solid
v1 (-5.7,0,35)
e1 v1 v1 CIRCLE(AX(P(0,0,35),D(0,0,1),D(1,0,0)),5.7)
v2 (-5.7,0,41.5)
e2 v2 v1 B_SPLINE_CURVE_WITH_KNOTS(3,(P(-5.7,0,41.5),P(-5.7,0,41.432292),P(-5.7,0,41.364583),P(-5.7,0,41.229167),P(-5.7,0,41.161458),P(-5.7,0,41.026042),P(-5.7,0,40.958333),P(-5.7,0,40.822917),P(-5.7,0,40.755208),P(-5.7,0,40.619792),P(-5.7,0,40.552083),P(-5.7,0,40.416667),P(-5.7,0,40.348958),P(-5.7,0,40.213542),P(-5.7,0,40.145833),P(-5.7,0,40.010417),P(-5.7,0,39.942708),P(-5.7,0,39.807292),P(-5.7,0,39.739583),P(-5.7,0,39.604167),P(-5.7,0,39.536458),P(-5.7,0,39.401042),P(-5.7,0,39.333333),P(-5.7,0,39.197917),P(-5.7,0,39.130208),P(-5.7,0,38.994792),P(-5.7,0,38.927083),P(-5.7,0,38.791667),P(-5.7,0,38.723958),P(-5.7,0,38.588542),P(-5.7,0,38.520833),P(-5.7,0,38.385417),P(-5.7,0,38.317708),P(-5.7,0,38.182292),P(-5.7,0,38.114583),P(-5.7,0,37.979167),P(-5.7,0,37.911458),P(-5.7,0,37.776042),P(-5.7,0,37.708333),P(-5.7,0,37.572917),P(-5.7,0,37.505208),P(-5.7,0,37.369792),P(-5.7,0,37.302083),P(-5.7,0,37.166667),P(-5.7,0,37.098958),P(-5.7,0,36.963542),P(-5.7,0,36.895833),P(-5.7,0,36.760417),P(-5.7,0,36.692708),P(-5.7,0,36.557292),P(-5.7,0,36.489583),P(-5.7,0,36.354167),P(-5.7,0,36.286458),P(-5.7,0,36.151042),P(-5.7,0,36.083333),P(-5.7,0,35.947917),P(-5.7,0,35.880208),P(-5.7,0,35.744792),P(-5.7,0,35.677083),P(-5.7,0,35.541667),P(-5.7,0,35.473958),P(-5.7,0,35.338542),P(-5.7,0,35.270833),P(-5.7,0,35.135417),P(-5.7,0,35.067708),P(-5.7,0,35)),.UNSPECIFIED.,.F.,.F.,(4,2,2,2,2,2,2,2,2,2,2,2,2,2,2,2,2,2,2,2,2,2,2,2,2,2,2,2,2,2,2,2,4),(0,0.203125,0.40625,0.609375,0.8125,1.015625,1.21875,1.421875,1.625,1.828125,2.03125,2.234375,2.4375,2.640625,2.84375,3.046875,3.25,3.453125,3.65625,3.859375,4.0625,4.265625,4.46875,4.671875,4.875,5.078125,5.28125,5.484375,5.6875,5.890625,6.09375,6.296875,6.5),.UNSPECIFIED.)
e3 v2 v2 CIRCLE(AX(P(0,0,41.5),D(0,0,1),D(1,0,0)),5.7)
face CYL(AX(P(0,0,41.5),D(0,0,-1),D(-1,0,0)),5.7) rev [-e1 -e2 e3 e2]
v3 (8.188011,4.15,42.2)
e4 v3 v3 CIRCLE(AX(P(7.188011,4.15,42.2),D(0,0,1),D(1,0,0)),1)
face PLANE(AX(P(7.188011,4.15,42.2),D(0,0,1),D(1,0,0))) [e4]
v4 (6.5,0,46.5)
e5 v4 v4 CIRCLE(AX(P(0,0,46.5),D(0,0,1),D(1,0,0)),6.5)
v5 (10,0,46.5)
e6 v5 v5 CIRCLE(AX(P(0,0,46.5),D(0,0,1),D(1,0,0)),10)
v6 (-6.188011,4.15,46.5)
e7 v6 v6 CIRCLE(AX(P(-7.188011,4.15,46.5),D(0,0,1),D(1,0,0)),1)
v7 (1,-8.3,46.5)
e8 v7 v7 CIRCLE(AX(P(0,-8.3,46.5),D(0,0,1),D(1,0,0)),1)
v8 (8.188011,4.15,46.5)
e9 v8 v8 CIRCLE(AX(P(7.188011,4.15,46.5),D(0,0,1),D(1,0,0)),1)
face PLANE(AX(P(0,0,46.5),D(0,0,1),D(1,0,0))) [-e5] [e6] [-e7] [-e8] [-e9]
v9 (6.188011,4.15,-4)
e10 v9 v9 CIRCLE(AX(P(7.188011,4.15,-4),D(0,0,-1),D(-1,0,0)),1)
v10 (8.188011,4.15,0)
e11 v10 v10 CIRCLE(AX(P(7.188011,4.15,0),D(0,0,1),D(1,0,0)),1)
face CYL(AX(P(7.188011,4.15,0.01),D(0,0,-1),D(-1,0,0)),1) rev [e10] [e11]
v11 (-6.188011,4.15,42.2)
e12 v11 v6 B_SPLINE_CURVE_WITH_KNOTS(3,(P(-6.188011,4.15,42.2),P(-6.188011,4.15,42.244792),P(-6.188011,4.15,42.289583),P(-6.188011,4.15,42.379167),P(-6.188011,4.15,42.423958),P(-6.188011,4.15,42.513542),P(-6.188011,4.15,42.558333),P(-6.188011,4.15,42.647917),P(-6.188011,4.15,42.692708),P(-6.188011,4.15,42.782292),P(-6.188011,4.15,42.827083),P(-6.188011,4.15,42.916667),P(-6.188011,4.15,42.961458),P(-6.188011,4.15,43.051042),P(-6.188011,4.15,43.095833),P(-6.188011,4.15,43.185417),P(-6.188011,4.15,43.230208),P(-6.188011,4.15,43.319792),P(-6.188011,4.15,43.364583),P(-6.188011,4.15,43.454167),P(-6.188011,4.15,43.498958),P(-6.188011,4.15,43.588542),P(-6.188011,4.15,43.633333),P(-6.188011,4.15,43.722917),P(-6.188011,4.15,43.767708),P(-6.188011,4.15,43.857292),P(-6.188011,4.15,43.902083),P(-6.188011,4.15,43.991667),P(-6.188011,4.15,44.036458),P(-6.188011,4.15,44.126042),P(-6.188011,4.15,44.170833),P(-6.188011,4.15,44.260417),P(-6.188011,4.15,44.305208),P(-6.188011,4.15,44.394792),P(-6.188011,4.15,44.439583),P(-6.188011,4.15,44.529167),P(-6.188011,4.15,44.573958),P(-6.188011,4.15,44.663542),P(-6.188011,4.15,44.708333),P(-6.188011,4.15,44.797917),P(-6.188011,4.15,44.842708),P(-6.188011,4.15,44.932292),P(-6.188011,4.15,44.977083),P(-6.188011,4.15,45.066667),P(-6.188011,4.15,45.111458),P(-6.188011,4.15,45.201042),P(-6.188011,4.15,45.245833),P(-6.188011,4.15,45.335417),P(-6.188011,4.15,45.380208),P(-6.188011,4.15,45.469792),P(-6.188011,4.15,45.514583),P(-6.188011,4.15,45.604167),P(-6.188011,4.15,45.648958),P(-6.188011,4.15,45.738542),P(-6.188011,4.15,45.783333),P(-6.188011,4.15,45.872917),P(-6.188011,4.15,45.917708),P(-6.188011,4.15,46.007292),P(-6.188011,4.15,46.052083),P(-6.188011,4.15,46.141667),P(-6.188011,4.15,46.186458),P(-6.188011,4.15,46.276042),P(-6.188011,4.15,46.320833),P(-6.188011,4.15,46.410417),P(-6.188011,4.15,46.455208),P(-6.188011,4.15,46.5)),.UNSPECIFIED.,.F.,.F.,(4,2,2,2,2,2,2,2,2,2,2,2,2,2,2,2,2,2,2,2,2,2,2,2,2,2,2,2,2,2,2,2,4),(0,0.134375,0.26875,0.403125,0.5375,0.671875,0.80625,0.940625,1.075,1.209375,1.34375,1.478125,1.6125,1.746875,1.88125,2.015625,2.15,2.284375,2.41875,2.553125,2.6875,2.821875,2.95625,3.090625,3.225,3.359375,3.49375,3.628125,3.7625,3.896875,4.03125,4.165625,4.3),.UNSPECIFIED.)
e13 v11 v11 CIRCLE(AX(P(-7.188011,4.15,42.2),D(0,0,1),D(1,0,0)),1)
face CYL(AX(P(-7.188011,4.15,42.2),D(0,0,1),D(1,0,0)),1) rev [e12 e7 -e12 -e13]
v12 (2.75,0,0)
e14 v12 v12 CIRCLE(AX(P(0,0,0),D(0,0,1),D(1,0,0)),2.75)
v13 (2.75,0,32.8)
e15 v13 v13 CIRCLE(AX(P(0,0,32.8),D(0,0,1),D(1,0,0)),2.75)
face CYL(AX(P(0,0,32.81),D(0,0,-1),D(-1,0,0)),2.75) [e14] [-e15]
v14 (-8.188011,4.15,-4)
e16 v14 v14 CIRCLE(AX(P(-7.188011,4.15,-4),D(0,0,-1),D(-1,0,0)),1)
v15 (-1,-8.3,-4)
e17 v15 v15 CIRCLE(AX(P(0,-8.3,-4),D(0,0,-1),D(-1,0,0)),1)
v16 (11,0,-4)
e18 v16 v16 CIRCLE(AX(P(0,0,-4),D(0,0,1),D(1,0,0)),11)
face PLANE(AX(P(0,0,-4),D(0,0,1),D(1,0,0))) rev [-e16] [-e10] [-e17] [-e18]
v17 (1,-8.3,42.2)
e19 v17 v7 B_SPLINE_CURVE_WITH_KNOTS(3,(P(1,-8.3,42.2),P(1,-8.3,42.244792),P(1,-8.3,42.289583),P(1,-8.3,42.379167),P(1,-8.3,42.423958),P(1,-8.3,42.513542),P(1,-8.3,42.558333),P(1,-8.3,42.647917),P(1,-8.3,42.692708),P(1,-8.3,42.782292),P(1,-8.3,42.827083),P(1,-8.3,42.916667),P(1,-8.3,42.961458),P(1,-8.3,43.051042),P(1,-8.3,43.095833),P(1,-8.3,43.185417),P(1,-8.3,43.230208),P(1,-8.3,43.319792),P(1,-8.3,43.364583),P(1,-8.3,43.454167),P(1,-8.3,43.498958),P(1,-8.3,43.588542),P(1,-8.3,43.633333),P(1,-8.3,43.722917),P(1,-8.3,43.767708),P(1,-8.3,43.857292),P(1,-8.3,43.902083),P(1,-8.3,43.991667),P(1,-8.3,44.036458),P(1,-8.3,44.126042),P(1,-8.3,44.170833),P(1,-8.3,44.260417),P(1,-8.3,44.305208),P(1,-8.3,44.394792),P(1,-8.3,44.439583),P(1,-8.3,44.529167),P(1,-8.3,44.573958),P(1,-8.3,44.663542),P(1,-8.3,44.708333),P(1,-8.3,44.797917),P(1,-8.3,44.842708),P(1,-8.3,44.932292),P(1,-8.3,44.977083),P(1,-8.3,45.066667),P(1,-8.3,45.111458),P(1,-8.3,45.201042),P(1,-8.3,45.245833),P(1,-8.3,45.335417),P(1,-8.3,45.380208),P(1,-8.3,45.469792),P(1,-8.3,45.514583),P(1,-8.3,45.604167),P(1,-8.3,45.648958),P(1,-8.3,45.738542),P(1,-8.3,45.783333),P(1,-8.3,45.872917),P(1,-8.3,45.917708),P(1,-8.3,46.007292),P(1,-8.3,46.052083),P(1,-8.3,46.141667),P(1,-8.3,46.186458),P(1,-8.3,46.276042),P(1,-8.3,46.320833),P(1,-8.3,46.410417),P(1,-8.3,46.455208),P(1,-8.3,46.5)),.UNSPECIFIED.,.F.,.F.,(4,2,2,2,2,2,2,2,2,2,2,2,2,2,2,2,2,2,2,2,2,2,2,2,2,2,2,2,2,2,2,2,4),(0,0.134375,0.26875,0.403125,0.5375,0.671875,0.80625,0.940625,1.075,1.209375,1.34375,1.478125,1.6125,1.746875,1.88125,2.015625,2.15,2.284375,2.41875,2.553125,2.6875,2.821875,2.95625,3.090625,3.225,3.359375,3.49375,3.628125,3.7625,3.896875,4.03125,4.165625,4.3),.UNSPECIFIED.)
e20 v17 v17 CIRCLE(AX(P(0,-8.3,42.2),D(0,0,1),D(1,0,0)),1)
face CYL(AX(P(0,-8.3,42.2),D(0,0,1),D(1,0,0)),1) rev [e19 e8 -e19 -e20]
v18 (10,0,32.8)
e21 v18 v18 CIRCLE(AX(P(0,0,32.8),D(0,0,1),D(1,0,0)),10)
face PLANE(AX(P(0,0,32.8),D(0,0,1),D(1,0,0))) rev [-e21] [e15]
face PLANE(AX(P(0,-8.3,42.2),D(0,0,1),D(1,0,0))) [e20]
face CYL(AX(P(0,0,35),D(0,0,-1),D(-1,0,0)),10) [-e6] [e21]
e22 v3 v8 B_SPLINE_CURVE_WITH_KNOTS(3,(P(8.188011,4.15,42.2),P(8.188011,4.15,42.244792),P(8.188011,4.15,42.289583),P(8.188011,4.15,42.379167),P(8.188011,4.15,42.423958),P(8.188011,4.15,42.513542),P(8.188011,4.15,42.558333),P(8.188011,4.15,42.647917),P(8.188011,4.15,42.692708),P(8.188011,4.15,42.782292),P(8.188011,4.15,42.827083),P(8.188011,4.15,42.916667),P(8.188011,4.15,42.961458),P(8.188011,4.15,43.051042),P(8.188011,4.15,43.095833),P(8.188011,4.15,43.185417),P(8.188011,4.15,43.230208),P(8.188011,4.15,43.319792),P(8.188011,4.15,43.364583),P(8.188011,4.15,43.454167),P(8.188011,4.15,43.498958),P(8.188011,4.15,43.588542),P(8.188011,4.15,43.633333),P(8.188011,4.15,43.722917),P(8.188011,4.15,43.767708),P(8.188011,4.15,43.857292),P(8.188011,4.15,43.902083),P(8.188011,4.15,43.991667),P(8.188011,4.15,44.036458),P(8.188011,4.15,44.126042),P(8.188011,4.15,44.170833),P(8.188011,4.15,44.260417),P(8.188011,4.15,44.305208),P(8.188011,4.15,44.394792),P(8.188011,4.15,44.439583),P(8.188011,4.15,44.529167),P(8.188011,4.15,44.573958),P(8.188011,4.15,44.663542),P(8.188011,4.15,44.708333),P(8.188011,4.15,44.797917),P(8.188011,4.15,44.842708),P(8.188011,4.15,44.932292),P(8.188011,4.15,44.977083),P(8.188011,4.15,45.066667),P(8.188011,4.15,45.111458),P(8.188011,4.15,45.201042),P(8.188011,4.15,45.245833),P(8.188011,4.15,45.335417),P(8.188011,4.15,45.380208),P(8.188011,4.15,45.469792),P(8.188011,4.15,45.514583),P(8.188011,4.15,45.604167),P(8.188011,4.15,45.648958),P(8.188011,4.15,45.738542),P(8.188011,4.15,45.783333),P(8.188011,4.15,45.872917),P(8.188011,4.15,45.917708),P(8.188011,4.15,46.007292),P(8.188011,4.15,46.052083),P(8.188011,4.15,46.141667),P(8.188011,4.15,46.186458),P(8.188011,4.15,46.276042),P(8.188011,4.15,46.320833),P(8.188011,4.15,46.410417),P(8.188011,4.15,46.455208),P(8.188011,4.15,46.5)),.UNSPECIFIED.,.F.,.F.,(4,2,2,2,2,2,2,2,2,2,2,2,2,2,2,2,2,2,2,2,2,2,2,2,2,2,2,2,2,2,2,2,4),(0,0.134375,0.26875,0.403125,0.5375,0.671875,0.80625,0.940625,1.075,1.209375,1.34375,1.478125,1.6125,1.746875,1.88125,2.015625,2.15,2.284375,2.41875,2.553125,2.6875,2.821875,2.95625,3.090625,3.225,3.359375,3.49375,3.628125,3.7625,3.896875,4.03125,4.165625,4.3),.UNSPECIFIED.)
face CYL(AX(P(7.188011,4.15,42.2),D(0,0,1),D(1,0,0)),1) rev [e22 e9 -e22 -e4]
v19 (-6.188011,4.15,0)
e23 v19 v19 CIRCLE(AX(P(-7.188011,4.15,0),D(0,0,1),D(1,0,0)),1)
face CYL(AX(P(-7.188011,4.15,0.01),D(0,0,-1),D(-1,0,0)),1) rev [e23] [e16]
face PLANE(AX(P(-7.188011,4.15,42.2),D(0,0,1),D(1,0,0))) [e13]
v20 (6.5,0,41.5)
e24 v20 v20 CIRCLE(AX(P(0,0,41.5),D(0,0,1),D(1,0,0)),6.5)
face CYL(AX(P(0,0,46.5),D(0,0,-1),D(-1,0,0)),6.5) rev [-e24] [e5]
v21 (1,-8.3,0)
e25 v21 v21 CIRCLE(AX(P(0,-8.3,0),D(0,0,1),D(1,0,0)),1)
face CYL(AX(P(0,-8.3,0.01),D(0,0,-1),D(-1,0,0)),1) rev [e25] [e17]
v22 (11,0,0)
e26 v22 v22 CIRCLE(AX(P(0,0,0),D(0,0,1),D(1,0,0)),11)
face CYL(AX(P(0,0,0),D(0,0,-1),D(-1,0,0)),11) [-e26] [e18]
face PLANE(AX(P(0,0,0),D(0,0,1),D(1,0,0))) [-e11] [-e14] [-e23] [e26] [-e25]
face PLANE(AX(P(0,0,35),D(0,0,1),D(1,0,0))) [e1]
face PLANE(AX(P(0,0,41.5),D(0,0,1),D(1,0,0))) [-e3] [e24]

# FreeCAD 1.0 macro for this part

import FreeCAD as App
import Part
import Sketcher

V = App.Vector
Q = App.Units.Quantity

doc = App.newDocument("Part")
body = doc.addObject("PartDesign::Body", "Body")

sketch1 = body.newObject("Sketcher::SketchObject", "Sketch")
sketch1.AttachmentSupport = (doc.getObject("XY_Plane"), [""])
sketch1.MapMode = "FlatFace"
sketch1.AttachmentOffset = App.Placement(V(0, 0, -4), App.Rotation())
sketch1.addGeometry(Part.Circle(V(0, 0, 0), V(0, 0, 1), 11), False)
sketch1.addConstraint([
    Sketcher.Constraint("Coincident", 0, 3, -1, 1),
    Sketcher.Constraint("Diameter", 0, Q("22 mm")),
])
pad1 = body.newObject("PartDesign::Pad", "Pad")
pad1.Profile = sketch1
pad1.Length = 4

sketch2 = body.newObject("Sketcher::SketchObject", "Sketch001")
sketch2.AttachmentSupport = (doc.getObject("XY_Plane"), [""])
sketch2.MapMode = "FlatFace"
sketch2.addGeometry(Part.Circle(V(0, 0, 0), V(0, 0, 1), 2.8), False)
sketch2.addConstraint([
    Sketcher.Constraint("Coincident", 0, 3, -1, 1),
    Sketcher.Constraint("Diameter", 0, Q("5.5 mm")),
])
pad2 = body.newObject("PartDesign::Pad", "Pad001")
pad2.Profile = sketch2
pad2.Length = 32.81

sketch3 = body.newObject("Sketcher::SketchObject", "Sketch002")
sketch3.AttachmentSupport = (doc.getObject("XY_Plane"), [""])
sketch3.MapMode = "FlatFace"
sketch3.AttachmentOffset = App.Placement(V(0, 0, 32.8), App.Rotation())
sketch3.addGeometry(Part.Circle(V(0, 0, 0), V(0, 0, 1), 10), False)
sketch3.addConstraint([
    Sketcher.Constraint("Coincident", 0, 3, -1, 1),
    Sketcher.Constraint("Diameter", 0, Q("20 mm")),
])
pad3 = body.newObject("PartDesign::Pad", "Pad002")
pad3.Profile = sketch3
pad3.Length = 2.2

sketch4 = body.newObject("Sketcher::SketchObject", "Sketch003")
sketch4.AttachmentSupport = (doc.getObject("XY_Plane"), [""])
sketch4.MapMode = "FlatFace"
sketch4.AttachmentOffset = App.Placement(V(0, 0, 35), App.Rotation())
sketch4.addGeometry([
    Part.Circle(V(0, 0, 0), V(0, 0, 1), 10),
    Part.Circle(V(0, 0, 0), V(0, 0, 1), 6),
], False)
sketch4.addConstraint([
    Sketcher.Constraint("Coincident", 0, 3, -1, 1),
    Sketcher.Constraint("Coincident", 1, 3, -1, 1),
    Sketcher.Constraint("Diameter", 0, Q("20 mm")),
    Sketcher.Constraint("Diameter", 1, Q("11.4 mm")),
])
pad4 = body.newObject("PartDesign::Pad", "Pad003")
pad4.Profile = sketch4
pad4.Length = 6.5

sketch5 = body.newObject("Sketcher::SketchObject", "Sketch004")
sketch5.AttachmentSupport = (doc.getObject("XY_Plane"), [""])
sketch5.MapMode = "FlatFace"
sketch5.AttachmentOffset = App.Placement(V(0, 0, 41.5), App.Rotation())
sketch5.addGeometry([
    Part.Circle(V(0, 0, 0), V(0, 0, 1), 10),
    Part.Circle(V(0, 0, 0), V(0, 0, 1), 6),
], False)
sketch5.addConstraint([
    Sketcher.Constraint("Coincident", 0, 3, -1, 1),
    Sketcher.Constraint("Coincident", 1, 3, -1, 1),
    Sketcher.Constraint("Diameter", 0, Q("20 mm")),
    Sketcher.Constraint("Diameter", 1, Q("13 mm")),
])
pad5 = body.newObject("PartDesign::Pad", "Pad004")
pad5.Profile = sketch5
pad5.Length = 5

sketch6 = body.newObject("Sketcher::SketchObject", "Sketch005")
sketch6.AttachmentSupport = (doc.getObject("XY_Plane"), [""])
sketch6.MapMode = "FlatFace"
sketch6.AttachmentOffset = App.Placement(V(0, 0, -4), App.Rotation())
sketch6.addGeometry([
    Part.Circle(V(7.2, 4.2, 0), V(0, 0, 1), 1),
    Part.Circle(V(-7.2, 4.2, 0), V(0, 0, 1), 1),
    Part.Circle(V(0, -8.3, 0), V(0, 0, 1), 1),
], False)
sketch6.addConstraint([
    Sketcher.Constraint("Equal", 0, 1),
    Sketcher.Constraint("Equal", 1, 2),
    Sketcher.Constraint("Symmetric", 0, 3, 1, 3, -2),
    Sketcher.Constraint("PointOnObject", 2, 3, -2),
    Sketcher.Constraint("Diameter", 0, Q("2 mm")),
    Sketcher.Constraint("DistanceY", 2, 3, -1, 1, Q("8.3 mm")),
    Sketcher.Constraint("DistanceY", -1, 1, 0, 3, Q("4.15 mm")),
    Sketcher.Constraint("DistanceX", -1, 1, 0, 3, Q("7.188011 mm")),
])
pocket1 = body.newObject("PartDesign::Pocket", "Pocket")
pocket1.Profile = sketch6
pocket1.Length = 4.01
pocket1.Reversed = True

sketch7 = body.newObject("Sketcher::SketchObject", "Sketch006")
sketch7.AttachmentSupport = (doc.getObject("XY_Plane"), [""])
sketch7.MapMode = "FlatFace"
sketch7.AttachmentOffset = App.Placement(V(0, 0, 42.2), App.Rotation())
sketch7.addGeometry([
    Part.Circle(V(7.2, 4.2, 0), V(0, 0, 1), 1),
    Part.Circle(V(-7.2, 4.2, 0), V(0, 0, 1), 1),
    Part.Circle(V(0, -8.3, 0), V(0, 0, 1), 1),
], False)
sketch7.addConstraint([
    Sketcher.Constraint("Equal", 0, 1),
    Sketcher.Constraint("Equal", 1, 2),
    Sketcher.Constraint("Symmetric", 0, 3, 1, 3, -2),
    Sketcher.Constraint("PointOnObject", 2, 3, -2),
    Sketcher.Constraint("Diameter", 0, Q("2 mm")),
    Sketcher.Constraint("DistanceY", 2, 3, -1, 1, Q("8.3 mm")),
    Sketcher.Constraint("DistanceY", -1, 1, 0, 3, Q("4.15 mm")),
    Sketcher.Constraint("DistanceX", -1, 1, 0, 3, Q("7.188011 mm")),
])
pocket2 = body.newObject("PartDesign::Pocket", "Pocket001")
pocket2.Profile = sketch7
pocket2.Length = 4.3
pocket2.Reversed = True

doc.recompute()
